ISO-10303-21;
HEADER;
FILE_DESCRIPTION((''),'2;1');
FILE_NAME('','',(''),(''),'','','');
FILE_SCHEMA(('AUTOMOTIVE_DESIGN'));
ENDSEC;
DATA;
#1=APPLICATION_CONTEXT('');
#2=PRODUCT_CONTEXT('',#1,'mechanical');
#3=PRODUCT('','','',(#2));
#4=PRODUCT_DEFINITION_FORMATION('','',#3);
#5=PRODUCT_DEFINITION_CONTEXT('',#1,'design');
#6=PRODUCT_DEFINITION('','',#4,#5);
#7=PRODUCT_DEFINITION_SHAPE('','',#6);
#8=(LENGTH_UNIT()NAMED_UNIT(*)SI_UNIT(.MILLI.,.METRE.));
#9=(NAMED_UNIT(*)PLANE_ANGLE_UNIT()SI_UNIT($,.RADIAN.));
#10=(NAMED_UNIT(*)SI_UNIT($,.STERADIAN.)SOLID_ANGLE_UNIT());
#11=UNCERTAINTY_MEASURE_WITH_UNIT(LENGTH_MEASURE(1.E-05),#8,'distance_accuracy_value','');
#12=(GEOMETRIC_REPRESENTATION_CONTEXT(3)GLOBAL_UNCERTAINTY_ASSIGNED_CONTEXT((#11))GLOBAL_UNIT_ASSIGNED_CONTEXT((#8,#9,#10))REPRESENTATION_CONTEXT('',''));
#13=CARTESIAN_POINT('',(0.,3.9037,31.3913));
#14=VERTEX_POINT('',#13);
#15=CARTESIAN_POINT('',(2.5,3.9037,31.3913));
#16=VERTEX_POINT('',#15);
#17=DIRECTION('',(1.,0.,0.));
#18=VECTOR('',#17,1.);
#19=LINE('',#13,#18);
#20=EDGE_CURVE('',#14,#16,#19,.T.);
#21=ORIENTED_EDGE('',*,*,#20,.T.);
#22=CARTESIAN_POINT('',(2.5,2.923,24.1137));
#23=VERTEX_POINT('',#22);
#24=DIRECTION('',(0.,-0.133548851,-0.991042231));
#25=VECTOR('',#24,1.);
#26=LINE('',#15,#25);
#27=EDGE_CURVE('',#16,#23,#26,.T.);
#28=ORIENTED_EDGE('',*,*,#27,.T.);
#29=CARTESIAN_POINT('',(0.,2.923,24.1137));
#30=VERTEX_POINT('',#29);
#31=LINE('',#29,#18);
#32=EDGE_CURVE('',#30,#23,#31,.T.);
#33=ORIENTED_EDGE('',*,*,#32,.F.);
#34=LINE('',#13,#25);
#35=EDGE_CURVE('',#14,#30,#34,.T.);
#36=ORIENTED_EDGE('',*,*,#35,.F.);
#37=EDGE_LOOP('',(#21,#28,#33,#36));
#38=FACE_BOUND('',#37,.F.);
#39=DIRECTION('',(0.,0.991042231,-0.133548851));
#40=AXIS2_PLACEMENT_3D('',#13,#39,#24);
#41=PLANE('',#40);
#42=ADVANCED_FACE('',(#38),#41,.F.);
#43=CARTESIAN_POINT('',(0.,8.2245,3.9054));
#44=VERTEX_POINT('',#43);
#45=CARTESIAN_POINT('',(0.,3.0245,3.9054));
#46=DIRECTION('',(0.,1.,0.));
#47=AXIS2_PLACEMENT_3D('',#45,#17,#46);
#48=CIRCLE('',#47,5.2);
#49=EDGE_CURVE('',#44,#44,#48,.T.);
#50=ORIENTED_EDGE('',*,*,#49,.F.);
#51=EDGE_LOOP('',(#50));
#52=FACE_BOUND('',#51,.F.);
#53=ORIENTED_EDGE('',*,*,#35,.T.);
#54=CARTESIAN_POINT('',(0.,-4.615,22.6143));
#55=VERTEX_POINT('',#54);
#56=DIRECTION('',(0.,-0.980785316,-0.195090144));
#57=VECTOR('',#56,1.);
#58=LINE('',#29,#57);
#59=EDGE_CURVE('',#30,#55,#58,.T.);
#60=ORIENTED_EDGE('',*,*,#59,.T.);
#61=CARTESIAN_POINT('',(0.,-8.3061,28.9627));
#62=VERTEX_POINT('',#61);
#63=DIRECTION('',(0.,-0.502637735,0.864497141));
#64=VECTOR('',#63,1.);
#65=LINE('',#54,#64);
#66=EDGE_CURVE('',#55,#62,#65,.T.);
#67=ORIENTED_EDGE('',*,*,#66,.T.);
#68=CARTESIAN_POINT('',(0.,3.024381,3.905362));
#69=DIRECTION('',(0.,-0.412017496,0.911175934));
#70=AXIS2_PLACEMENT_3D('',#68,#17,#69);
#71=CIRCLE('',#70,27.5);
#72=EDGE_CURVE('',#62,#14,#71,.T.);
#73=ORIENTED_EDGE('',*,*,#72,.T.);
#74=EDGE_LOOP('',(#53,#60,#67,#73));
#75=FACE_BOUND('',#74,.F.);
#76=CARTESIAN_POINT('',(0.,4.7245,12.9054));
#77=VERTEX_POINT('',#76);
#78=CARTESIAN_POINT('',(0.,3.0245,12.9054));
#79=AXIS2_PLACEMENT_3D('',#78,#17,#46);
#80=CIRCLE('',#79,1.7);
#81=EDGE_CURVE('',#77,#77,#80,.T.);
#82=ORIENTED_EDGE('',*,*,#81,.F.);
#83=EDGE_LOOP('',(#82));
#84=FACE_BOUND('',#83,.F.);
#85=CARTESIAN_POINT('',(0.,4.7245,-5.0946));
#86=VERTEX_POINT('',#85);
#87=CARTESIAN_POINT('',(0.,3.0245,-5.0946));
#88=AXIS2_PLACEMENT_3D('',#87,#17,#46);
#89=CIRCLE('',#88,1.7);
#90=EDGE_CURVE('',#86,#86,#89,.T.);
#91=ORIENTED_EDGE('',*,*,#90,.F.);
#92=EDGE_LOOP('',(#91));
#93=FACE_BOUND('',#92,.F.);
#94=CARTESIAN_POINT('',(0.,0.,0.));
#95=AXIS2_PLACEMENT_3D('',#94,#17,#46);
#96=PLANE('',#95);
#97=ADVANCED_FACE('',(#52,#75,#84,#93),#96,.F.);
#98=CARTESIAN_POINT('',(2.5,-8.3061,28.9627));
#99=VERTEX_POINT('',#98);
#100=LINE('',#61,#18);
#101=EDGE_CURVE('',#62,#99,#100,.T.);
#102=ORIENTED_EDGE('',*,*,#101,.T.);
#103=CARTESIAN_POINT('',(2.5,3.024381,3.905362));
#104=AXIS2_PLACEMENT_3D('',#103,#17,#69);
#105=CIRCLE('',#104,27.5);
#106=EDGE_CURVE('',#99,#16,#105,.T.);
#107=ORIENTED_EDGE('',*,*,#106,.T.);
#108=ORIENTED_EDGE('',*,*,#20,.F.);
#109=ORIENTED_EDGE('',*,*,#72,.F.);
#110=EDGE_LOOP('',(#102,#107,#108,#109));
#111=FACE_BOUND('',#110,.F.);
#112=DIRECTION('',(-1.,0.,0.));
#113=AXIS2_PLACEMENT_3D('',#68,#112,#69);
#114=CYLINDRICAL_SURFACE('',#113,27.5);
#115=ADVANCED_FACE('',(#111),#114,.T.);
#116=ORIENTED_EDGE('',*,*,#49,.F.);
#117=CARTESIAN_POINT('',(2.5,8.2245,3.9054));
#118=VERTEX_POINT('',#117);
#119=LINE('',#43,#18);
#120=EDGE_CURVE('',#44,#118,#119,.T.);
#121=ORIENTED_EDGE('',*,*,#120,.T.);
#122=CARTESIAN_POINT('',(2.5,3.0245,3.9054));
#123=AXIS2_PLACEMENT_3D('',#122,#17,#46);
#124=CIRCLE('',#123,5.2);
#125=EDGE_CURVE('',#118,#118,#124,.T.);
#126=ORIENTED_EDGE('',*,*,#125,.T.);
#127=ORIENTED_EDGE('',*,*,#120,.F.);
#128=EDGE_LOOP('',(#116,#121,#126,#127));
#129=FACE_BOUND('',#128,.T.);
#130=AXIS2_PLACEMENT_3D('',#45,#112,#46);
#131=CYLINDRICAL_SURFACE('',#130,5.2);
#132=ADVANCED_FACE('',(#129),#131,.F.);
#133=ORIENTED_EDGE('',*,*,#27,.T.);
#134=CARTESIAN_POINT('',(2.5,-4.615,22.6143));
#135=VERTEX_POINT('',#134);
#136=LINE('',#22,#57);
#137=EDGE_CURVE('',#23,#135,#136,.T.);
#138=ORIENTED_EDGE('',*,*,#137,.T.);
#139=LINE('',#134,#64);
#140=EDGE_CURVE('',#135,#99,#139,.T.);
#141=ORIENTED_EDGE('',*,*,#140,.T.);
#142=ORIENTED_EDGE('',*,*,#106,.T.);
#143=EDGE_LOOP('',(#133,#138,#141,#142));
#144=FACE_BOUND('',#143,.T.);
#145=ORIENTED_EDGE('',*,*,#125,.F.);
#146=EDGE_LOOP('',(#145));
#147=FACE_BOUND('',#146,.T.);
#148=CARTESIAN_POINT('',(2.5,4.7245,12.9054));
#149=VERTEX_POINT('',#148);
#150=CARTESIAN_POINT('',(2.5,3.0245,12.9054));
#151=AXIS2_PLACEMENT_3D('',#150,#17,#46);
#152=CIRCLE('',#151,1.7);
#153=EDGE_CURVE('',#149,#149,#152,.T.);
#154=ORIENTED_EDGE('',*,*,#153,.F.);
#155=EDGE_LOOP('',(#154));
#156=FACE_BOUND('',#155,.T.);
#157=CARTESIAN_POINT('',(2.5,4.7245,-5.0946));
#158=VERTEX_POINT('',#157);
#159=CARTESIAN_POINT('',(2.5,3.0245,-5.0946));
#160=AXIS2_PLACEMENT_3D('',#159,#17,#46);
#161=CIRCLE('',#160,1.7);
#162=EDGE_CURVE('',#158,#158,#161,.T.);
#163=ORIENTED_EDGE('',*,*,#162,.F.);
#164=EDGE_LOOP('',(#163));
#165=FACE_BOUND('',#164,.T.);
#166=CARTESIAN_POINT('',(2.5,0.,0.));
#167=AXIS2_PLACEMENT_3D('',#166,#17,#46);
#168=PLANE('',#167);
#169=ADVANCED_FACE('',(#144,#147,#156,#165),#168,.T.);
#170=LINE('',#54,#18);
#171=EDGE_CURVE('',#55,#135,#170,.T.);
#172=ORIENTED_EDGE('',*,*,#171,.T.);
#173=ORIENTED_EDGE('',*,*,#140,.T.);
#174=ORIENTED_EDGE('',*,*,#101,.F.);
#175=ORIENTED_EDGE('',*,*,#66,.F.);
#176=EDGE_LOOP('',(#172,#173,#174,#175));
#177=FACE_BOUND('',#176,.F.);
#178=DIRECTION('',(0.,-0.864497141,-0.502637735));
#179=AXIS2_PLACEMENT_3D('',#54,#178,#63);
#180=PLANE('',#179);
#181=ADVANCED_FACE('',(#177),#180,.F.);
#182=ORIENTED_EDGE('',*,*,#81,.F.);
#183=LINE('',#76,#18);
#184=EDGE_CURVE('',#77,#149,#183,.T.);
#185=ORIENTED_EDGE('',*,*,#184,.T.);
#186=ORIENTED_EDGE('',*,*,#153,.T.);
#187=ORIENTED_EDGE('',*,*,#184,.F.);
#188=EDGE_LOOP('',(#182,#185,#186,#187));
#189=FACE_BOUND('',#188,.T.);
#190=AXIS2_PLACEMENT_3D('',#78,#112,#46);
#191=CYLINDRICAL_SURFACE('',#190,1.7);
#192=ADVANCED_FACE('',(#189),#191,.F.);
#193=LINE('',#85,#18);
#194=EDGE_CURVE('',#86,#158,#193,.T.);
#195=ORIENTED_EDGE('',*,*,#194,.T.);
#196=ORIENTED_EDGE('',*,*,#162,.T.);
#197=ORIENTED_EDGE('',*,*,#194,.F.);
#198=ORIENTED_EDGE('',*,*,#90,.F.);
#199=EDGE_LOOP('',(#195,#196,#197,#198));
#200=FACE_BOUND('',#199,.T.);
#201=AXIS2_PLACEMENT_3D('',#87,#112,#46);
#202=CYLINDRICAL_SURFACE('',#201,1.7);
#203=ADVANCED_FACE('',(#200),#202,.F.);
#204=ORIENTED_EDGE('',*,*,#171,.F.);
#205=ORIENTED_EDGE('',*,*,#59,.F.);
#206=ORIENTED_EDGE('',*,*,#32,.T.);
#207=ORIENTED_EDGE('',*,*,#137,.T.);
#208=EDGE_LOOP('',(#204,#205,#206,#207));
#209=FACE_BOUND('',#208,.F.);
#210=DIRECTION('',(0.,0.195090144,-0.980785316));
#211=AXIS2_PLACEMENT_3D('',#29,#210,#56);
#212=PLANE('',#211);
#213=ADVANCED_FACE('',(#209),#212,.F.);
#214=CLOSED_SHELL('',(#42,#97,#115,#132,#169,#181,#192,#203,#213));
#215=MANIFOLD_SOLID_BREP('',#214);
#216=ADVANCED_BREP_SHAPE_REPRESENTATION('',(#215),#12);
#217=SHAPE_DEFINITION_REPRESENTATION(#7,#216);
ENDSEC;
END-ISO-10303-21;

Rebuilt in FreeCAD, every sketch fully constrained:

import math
import FreeCAD as App
import Part
import Sketcher
Q = App.Units.Quantity

doc = App.newDocument("Part")
params = doc.addObject("Spreadsheet::Sheet", "Params")
for row, (alias, value) in enumerate([
    ("sketch1_diameter", "3.4 mm"),
    ("sketch1_diameter2", "10.4 mm"),
    ("sketch1_radius", "27.5 mm"),
    ("pad1_length", "2.5 mm"),
], start=1):
    params.set(f"A{row}", alias)
    params.set(f"B{row}", "=" + value)
    params.setAlias(f"B{row}", alias)

body = doc.addObject("PartDesign::Body", "Body")

sketch1 = doc.addObject("Sketcher::SketchObject", "Sketch")
body.addObject(sketch1)
sketch1.AttachmentSupport = (doc.YZ_Plane, [""])
sketch1.MapMode = "FlatFace"
sketch1.addGeometry(Part.LineSegment(App.Vector(2.9, 24.1, 0), App.Vector(-4.6, 22.6, 0)), False)
sketch1.addGeometry(Part.LineSegment(App.Vector(-4.6, 22.6, 0), App.Vector(-8.3, 29, 0)), False)
sketch1.addGeometry(Part.ArcOfCircle(Part.Circle(App.Vector(3, 3.9, 0), App.Vector(0, 0, 1), 27.5), math.radians(114), math.radians(448)), False)
sketch1.addGeometry(Part.LineSegment(App.Vector(3.9, 31.4, 0), App.Vector(2.9, 24.1, 0)), False)
sketch1.addGeometry(Part.Circle(App.Vector(3, -5.1, 0), App.Vector(0, 0, 1), 1.7), False)
sketch1.addGeometry(Part.Circle(App.Vector(3, 3.9, 0), App.Vector(0, 0, 1), 5.2), False)
sketch1.addGeometry(Part.Circle(App.Vector(3, 12.9, 0), App.Vector(0, 0, 1), 1.7), False)
sketch1.addConstraint(Sketcher.Constraint("Coincident", 0, 2, 1, 1))
sketch1.addConstraint(Sketcher.Constraint("Coincident", 1, 2, 2, 1))
sketch1.addConstraint(Sketcher.Constraint("Coincident", 2, 2, 3, 1))
sketch1.addConstraint(Sketcher.Constraint("Coincident", 3, 2, 0, 1))
sketch1.addConstraint(Sketcher.Constraint("Coincident", 5, 3, 2, 3))
sketch1.addConstraint(Sketcher.Constraint("Equal", 4, 6))
sketch1.addConstraint(Sketcher.Constraint("Vertical", 2, 3, 4, 3))
sketch1.addConstraint(Sketcher.Constraint("Vertical", 5, 3, 6, 3))
sketch1.addConstraint(Sketcher.Constraint("Equal", 1, 3))
sketch1.addConstraint(Sketcher.Constraint("Diameter", 4, Q("3.4 mm")))
sketch1.addConstraint(Sketcher.Constraint("Diameter", 5, Q("10.4 mm")))
sketch1.addConstraint(Sketcher.Constraint("Radius", 2, Q("27.5 mm")))
sketch1.addConstraint(Sketcher.Constraint("DistanceY", 4, 3, 2, 3, Q("9 mm")))
sketch1.addConstraint(Sketcher.Constraint("DistanceY", 2, 3, 6, 3, Q("9 mm")))
sketch1.addConstraint(Sketcher.Constraint("Angle", 0, Q("-168.75 deg")))
sketch1.addConstraint(Sketcher.Constraint("DistanceX", 0, 2, -1, 1, Q("4.615 mm")))
sketch1.addConstraint(Sketcher.Constraint("DistanceX", 1, 2, -1, 1, Q("8.306 mm")))
sketch1.addConstraint(Sketcher.Constraint("DistanceX", -1, 1, 3, 2, Q("2.923 mm")))
sketch1.addConstraint(Sketcher.Constraint("DistanceY", 6, 3, 0, 2, Q("9.709 mm")))
sketch1.addConstraint(Sketcher.Constraint("DistanceY", 0, 2, 2, 2, Q("8.777 mm")))
sketch1.addConstraint(Sketcher.Constraint("DistanceY", -1, 1, 2, 3, Q("3.9054 mm")))
sketch1.setExpression("Constraints[9]", "Params.sketch1_diameter")
sketch1.setExpression("Constraints[10]", "Params.sketch1_diameter2")
sketch1.setExpression("Constraints[11]", "Params.sketch1_radius")
pad1 = doc.addObject("PartDesign::Pad", "Pad")
body.addObject(pad1)
pad1.Profile = sketch1
pad1.setExpression("Length", "Params.pad1_length")

doc.recompute()
